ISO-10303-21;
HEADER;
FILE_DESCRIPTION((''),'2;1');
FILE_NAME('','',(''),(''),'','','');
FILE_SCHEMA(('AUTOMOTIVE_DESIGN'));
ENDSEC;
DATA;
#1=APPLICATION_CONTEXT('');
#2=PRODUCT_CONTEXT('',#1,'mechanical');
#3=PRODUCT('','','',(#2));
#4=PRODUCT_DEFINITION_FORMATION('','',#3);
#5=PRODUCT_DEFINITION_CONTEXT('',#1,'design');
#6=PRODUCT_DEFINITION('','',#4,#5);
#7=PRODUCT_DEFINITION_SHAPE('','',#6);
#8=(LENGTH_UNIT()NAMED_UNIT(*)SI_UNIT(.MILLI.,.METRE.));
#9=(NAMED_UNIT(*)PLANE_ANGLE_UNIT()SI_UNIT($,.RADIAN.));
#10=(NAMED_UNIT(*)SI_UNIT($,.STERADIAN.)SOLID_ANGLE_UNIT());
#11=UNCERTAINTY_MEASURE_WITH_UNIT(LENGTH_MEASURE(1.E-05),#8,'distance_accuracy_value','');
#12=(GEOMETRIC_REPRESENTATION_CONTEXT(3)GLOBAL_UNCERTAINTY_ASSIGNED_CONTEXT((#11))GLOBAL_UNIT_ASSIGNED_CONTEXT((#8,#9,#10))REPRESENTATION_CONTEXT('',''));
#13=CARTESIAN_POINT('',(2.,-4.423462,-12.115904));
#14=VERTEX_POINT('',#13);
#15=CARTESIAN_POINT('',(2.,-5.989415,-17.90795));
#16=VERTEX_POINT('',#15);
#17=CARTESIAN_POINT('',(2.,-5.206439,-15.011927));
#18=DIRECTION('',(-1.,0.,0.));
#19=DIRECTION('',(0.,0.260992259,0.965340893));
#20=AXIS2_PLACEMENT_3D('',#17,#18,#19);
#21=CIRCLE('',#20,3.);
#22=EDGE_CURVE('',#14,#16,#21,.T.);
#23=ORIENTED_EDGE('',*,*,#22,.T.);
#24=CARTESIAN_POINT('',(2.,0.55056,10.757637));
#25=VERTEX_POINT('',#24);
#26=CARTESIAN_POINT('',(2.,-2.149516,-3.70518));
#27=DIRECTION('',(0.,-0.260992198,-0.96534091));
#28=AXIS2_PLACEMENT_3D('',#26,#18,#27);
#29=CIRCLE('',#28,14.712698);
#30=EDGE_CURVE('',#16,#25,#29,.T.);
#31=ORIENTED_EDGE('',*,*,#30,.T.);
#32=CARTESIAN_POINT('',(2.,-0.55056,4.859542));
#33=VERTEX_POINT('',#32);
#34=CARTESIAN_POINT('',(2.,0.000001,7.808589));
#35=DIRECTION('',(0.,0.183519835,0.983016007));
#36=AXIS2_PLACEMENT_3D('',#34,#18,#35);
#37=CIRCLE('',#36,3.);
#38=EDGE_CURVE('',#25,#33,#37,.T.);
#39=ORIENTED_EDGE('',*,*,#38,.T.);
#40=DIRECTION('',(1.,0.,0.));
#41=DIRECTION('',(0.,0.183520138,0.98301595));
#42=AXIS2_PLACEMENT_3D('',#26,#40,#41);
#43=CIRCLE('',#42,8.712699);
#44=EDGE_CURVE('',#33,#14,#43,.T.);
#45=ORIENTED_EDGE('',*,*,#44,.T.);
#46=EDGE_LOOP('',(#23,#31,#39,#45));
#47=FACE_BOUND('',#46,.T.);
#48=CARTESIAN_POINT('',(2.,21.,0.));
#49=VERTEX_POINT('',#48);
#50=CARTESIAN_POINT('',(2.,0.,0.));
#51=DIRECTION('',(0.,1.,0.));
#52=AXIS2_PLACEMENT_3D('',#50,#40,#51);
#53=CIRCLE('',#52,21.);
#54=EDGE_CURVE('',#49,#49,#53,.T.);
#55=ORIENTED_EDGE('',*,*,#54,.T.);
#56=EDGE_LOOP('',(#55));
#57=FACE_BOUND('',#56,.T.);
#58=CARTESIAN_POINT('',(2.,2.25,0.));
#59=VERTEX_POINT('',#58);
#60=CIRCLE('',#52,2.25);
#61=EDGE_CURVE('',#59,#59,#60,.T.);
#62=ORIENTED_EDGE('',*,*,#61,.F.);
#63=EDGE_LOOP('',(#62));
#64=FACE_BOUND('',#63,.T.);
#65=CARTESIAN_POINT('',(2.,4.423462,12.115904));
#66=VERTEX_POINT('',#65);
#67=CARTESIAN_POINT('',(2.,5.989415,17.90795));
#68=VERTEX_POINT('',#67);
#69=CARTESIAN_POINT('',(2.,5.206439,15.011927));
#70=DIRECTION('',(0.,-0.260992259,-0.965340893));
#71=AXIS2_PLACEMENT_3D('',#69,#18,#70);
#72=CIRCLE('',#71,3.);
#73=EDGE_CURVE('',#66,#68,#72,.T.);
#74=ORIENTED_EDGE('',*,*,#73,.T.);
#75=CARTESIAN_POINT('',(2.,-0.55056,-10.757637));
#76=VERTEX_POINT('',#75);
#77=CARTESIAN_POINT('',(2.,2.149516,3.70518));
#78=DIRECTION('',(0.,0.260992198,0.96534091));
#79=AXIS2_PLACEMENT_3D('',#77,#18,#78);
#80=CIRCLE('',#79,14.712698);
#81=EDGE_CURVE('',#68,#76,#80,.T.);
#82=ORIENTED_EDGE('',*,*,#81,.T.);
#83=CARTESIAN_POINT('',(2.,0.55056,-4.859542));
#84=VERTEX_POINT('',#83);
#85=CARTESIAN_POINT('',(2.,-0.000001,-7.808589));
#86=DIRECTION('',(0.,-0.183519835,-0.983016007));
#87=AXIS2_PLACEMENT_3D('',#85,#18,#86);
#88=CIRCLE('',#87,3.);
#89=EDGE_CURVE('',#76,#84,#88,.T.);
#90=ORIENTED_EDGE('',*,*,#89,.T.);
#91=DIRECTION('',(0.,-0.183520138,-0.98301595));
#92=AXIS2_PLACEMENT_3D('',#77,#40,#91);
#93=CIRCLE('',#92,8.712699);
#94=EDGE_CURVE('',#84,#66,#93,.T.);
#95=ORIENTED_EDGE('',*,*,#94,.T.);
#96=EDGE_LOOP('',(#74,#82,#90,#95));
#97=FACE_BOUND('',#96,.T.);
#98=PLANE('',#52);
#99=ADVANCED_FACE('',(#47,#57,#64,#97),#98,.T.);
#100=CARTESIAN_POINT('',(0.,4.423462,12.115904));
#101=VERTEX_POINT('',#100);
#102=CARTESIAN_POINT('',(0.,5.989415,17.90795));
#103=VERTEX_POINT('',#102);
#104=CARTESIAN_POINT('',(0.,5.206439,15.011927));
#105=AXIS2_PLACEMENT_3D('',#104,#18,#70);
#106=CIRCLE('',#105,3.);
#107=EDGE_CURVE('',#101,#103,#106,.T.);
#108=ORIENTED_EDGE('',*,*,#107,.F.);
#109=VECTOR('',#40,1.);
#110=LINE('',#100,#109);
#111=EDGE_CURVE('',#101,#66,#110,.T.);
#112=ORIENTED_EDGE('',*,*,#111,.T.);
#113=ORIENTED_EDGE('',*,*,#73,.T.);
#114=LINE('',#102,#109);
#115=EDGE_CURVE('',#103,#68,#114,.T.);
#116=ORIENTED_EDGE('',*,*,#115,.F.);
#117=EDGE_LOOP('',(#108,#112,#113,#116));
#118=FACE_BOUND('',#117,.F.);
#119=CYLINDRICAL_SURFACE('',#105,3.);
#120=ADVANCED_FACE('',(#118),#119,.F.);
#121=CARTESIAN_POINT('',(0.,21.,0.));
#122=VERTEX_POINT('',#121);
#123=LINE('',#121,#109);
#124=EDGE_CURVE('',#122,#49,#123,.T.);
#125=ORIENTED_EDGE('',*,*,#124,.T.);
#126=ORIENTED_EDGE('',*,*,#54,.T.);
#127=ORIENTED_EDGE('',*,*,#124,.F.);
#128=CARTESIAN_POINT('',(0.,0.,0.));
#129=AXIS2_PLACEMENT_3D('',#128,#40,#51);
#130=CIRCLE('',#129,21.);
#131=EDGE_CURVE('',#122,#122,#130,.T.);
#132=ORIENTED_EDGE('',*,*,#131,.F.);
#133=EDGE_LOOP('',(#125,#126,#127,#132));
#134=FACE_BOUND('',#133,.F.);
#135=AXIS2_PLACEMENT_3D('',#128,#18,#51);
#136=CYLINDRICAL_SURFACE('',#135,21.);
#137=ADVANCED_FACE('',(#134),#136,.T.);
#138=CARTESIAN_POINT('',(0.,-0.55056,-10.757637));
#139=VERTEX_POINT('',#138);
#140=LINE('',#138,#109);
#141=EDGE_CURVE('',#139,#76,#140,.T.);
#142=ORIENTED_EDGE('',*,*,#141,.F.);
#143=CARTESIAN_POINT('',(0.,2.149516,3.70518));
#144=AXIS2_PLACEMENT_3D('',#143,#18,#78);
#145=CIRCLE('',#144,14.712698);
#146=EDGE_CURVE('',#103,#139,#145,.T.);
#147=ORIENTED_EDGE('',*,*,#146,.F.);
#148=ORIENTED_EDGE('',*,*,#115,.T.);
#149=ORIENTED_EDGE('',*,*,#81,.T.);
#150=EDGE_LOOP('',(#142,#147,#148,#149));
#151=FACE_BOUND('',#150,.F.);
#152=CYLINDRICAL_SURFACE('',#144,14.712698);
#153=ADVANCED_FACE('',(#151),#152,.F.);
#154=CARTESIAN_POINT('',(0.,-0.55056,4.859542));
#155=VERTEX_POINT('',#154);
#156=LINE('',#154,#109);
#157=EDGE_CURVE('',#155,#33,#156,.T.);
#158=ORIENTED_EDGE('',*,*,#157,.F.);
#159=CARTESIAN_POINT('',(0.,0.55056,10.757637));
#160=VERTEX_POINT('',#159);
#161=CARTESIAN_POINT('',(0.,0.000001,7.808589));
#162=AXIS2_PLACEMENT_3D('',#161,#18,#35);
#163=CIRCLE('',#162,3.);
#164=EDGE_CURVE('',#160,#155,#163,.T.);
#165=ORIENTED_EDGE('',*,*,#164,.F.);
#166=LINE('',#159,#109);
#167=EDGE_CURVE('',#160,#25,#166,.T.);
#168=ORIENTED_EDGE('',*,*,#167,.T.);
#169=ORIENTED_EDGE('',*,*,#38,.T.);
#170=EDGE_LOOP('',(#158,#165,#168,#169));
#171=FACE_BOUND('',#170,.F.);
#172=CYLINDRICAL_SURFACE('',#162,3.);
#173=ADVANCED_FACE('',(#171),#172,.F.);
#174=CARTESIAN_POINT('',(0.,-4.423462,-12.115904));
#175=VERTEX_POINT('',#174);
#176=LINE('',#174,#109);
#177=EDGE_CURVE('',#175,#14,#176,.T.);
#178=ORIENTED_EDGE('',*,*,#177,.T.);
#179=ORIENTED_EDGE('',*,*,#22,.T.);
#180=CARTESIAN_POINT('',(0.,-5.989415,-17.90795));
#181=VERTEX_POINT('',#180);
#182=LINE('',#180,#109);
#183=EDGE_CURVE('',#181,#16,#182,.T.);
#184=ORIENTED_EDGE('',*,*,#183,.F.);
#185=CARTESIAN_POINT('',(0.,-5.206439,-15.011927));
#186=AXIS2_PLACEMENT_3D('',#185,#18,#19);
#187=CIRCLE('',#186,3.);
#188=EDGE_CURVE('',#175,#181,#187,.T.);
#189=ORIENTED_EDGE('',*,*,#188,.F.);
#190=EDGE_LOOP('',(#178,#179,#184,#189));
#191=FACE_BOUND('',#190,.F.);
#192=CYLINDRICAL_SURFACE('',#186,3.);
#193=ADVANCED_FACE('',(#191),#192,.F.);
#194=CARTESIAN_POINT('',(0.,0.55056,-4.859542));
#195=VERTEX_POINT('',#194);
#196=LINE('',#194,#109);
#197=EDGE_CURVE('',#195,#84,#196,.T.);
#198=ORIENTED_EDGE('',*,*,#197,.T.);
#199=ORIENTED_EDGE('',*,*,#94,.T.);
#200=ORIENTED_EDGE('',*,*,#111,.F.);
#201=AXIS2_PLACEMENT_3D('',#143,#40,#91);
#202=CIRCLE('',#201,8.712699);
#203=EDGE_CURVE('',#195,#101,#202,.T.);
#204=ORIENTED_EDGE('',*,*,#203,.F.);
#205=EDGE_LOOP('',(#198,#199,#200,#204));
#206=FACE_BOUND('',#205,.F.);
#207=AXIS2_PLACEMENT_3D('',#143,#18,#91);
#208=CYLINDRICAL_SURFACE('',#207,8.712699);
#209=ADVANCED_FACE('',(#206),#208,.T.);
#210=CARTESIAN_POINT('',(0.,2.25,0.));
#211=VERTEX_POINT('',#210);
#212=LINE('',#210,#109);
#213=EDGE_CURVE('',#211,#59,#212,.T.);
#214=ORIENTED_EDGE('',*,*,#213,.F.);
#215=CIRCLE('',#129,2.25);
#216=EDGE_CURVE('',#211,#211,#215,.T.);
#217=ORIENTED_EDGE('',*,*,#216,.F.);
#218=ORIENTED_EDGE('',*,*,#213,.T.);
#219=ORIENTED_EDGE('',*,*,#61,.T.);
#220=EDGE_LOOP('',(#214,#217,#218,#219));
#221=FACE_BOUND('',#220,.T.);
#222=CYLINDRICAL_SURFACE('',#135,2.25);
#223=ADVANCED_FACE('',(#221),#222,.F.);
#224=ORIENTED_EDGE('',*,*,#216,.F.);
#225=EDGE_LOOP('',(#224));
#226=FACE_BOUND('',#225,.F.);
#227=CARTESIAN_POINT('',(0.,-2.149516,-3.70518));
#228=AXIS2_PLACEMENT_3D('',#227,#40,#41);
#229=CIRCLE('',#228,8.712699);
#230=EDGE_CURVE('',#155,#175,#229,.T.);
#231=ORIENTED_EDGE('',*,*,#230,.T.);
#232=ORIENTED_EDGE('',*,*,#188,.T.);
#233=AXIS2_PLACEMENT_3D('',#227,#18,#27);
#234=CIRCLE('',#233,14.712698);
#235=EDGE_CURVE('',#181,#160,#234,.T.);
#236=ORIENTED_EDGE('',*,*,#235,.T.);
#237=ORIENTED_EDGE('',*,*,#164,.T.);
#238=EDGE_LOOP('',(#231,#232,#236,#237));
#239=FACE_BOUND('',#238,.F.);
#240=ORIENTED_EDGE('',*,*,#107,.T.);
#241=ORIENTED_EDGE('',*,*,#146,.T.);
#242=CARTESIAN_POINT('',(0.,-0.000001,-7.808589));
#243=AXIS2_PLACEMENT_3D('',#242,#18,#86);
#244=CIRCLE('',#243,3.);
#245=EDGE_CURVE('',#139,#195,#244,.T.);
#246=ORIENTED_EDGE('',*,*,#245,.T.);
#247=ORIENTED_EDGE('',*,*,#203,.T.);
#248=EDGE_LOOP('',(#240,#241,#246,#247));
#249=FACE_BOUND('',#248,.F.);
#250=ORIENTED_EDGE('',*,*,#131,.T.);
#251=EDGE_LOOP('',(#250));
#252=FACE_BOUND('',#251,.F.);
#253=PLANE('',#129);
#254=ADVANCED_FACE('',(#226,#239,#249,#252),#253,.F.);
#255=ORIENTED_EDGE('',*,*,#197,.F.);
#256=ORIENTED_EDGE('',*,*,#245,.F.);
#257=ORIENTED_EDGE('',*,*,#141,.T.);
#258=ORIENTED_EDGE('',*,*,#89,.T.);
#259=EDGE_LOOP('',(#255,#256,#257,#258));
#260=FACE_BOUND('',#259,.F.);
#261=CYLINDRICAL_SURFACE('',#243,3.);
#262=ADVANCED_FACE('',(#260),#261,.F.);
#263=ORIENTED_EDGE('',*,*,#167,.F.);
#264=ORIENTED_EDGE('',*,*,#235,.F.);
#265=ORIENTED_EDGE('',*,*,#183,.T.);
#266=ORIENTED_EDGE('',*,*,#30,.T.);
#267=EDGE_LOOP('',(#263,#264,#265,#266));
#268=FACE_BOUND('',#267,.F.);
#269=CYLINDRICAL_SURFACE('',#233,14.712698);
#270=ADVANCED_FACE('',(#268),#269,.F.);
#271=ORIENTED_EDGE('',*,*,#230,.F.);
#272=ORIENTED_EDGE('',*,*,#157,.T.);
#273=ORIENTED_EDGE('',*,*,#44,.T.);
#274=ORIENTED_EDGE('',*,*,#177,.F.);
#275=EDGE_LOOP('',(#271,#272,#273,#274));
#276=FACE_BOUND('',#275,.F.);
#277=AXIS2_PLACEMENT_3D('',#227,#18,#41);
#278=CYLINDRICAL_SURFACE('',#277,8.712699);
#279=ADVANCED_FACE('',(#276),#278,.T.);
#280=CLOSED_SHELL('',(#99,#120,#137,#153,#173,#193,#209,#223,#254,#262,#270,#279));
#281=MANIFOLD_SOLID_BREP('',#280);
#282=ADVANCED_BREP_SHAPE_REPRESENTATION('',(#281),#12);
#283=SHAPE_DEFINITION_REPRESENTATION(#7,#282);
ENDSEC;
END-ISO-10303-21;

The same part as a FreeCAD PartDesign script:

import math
import FreeCAD as App
import Part
import Sketcher
Q = App.Units.Quantity

doc = App.newDocument("Part")
body = doc.addObject("PartDesign::Body", "Body")

# Sketch on YZ plane
sketch1 = doc.addObject("Sketcher::SketchObject", "Sketch")
body.addObject(sketch1)
sketch1.AttachmentSupport = (doc.YZ_Plane, [""])
sketch1.MapMode = "FlatFace"
sketch1.addGeometry([
    Part.Circle(App.Vector(0, 0, 0), App.Vector(0, 0, 1), 21),  # 0
    Part.ArcOfCircle(Part.Circle(App.Vector(-2.149516, -3.70518, 0), App.Vector(0, 0, 1), 8.712699), math.radians(79.425135), math.radians(254.871056)),  # 1
    Part.ArcOfCircle(Part.Circle(App.Vector(-5.206439, -15.011927, 0), App.Vector(0, 0, 1), 3), math.radians(-105.128934), math.radians(74.871053)),  # 2
    Part.ArcOfCircle(Part.Circle(App.Vector(-2.149516, -3.70518, 0), App.Vector(0, 0, 1), 14.712698), math.radians(79.425138), math.radians(254.871056)),  # 3
    Part.ArcOfCircle(Part.Circle(App.Vector(0.000001, 7.808589, 0), App.Vector(0, 0, 1), 3), math.radians(-100.57487), math.radians(79.425152)),  # 4
    Part.Circle(App.Vector(0, 0, 0), App.Vector(0, 0, 1), 2.25),  # 5
    Part.ArcOfCircle(Part.Circle(App.Vector(2.149516, 3.70518, 0), App.Vector(0, 0, 1), 14.712698), math.radians(-100.574862), math.radians(74.871056)),  # 6
    Part.ArcOfCircle(Part.Circle(App.Vector(-0.000001, -7.808589, 0), App.Vector(0, 0, 1), 3), math.radians(79.42513), math.radians(259.425152)),  # 7
    Part.ArcOfCircle(Part.Circle(App.Vector(2.149516, 3.70518, 0), App.Vector(0, 0, 1), 8.712699), math.radians(-100.574865), math.radians(74.871056)),  # 8
    Part.ArcOfCircle(Part.Circle(App.Vector(5.206439, 15.011927, 0), App.Vector(0, 0, 1), 3), math.radians(74.871066), math.radians(254.871053)),  # 9
], False)
sketch1.addConstraint([
    Sketcher.Constraint("Tangent", 1, 2, 2, 2),
    Sketcher.Constraint("Tangent", 2, 1, 3, 2),
    Sketcher.Constraint("Tangent", 3, 1, 4, 2),
    Sketcher.Constraint("Tangent", 4, 1, 1, 1),
    Sketcher.Constraint("Tangent", 6, 1, 7, 2),
    Sketcher.Constraint("Tangent", 7, 1, 8, 1),
    Sketcher.Constraint("Tangent", 8, 2, 9, 2),
    Sketcher.Constraint("Tangent", 9, 1, 6, 2),
    Sketcher.Constraint("Coincident", 0, 3, -1, 1),
    Sketcher.Constraint("Coincident", 5, 3, -1, 1),
    Sketcher.Constraint("Coincident", 3, 3, 1, 3),
    Sketcher.Constraint("Coincident", 8, 3, 6, 3),
    Sketcher.Constraint("Equal", 3, 6),
    Sketcher.Constraint("Equal", 4, 7),
    Sketcher.Constraint("Symmetric", 1, 3, 6, 3, -1, 1),
    Sketcher.Constraint("Symmetric", 4, 3, 7, 3, -1),
    Sketcher.Constraint("Diameter", 0, Q("42 mm")),
    Sketcher.Constraint("Radius", 2, Q("3 mm")),
    Sketcher.Constraint("Diameter", 5, Q("4.5 mm")),
    Sketcher.Constraint("Radius", 1, Q("8.712699 mm")),
    Sketcher.Constraint("DistanceX", 2, 1, 3, 3, Q("3.839899 mm")),
    Sketcher.Constraint("DistanceX", 1, 2, 6, 1, Q("3.872902 mm")),
    Sketcher.Constraint("DistanceX", 3, 1, 8, 2, Q("3.872902 mm")),
    Sketcher.Constraint("DistanceY", 1, 3, -1, 1, Q("3.70518 mm")),
])
pad1 = doc.addObject("PartDesign::Pad", "Pad")
body.addObject(pad1)
pad1.Profile = sketch1
pad1.Length = 2

doc.recompute()
